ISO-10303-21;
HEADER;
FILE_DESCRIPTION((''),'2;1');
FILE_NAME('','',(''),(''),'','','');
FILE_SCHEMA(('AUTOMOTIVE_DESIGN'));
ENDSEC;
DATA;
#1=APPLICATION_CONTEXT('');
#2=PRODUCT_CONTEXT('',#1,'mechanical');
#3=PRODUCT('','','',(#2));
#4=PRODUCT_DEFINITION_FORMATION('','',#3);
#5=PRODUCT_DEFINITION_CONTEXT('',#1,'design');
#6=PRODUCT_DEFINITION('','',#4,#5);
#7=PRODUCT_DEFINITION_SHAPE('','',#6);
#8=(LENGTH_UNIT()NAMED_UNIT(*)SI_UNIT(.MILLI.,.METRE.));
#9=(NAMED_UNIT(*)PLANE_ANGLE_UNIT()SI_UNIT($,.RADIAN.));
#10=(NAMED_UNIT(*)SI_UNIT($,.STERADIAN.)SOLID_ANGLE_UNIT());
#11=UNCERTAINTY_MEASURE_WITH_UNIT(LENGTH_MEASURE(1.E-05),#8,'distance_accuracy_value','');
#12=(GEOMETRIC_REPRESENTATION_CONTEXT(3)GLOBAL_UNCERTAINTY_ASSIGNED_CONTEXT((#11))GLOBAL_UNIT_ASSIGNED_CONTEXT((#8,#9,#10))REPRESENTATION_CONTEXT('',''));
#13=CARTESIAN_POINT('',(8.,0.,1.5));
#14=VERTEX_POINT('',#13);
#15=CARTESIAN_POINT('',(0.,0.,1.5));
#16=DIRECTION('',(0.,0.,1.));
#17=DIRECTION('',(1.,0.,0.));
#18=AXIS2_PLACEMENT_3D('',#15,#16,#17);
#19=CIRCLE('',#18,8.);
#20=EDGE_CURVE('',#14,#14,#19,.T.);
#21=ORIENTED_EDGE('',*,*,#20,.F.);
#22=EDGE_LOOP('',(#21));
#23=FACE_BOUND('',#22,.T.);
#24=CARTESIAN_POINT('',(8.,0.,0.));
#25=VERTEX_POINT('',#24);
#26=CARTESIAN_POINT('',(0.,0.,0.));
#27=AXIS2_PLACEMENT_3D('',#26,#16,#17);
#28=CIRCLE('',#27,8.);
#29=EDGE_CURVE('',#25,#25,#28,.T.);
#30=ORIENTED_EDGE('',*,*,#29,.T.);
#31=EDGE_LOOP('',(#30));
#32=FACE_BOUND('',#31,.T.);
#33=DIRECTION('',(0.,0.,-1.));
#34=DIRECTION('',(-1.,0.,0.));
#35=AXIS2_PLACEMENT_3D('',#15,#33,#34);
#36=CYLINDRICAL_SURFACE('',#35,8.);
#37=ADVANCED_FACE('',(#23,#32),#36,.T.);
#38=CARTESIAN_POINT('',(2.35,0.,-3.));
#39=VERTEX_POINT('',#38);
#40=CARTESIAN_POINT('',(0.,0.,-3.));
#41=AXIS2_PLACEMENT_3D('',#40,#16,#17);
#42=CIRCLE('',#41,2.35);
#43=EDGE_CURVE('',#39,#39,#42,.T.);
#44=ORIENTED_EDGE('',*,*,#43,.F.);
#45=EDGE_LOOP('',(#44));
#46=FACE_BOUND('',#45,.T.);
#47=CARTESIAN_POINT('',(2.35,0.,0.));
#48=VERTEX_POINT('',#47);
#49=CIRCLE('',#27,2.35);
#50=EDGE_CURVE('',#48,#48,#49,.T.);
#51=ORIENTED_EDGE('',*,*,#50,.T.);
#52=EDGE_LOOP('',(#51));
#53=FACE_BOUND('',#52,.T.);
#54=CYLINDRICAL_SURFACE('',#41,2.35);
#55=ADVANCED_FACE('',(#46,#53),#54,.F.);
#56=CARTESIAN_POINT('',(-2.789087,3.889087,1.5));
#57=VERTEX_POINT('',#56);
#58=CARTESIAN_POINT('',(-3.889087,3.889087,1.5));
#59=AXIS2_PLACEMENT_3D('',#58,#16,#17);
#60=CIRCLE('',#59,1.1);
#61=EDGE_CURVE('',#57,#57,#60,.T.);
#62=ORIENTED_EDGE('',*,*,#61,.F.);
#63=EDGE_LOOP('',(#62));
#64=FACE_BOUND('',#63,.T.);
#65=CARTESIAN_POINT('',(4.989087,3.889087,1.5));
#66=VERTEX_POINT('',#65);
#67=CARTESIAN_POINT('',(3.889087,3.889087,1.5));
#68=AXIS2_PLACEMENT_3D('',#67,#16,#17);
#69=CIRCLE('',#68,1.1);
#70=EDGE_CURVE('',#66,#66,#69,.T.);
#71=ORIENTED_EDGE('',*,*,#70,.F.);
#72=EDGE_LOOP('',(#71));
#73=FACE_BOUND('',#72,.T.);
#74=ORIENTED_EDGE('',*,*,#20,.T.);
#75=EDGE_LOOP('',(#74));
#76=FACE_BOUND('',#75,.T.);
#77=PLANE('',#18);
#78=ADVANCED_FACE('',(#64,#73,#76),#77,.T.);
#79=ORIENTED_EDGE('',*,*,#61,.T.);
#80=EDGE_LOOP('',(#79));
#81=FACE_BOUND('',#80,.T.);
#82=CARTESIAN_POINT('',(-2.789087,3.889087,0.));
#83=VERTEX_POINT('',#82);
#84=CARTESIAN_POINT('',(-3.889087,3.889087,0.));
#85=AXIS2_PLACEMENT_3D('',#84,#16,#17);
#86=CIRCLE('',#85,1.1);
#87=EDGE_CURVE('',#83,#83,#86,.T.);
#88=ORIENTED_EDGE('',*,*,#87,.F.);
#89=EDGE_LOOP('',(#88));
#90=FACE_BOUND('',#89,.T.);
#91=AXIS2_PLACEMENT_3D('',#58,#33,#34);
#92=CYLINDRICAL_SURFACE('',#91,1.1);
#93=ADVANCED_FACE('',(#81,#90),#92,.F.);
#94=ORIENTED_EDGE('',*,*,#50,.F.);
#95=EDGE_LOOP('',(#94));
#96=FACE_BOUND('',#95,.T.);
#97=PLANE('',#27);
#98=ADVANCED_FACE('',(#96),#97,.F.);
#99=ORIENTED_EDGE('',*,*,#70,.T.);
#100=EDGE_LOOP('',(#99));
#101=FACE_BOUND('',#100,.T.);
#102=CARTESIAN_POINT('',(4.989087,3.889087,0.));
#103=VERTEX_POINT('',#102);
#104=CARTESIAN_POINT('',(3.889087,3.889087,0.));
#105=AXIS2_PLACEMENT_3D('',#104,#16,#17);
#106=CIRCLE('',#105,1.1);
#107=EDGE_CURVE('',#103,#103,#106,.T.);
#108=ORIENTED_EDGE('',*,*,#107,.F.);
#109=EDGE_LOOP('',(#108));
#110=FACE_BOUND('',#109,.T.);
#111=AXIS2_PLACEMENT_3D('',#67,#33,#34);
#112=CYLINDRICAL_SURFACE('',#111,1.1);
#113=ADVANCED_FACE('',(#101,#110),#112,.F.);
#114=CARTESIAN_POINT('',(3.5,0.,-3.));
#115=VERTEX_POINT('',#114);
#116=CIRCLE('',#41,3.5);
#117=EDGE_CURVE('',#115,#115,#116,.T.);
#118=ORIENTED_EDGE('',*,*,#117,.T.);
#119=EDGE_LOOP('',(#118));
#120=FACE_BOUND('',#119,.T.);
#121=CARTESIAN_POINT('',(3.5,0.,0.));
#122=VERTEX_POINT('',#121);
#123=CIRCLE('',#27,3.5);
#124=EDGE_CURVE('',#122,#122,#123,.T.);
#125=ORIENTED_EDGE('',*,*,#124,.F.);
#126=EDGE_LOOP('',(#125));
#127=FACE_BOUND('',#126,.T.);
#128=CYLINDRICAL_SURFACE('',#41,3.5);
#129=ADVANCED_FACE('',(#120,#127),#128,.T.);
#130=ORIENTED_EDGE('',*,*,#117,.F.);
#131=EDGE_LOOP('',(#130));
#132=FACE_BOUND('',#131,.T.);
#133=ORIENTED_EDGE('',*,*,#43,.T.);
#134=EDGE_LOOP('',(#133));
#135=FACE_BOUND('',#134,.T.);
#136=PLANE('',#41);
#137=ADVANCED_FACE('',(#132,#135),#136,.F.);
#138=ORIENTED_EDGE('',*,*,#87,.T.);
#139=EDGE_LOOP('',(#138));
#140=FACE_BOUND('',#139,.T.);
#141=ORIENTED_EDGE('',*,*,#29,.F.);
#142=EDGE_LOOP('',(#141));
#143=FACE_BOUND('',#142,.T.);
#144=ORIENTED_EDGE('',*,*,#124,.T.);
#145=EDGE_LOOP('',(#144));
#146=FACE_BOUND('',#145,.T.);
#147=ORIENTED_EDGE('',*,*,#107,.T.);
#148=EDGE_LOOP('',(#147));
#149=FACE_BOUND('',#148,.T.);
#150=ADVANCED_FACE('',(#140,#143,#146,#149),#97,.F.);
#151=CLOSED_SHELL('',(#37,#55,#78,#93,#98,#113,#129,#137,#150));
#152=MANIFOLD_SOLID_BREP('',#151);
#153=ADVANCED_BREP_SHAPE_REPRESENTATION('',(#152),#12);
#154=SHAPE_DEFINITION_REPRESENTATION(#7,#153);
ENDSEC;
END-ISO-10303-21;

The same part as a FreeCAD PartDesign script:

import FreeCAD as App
import Part
import Sketcher

doc = App.newDocument("Part")
params = doc.addObject("Spreadsheet::Sheet", "Params")
for row, (alias, value) in enumerate([
    ("sketch1_diameter", "16 mm"),
    ("sketch1_diameter2", "2.2 mm"),
    ("pad1_length", "1.5 mm"),
    ("sketch2_diameter", "7 mm"),
    ("sketch2_diameter2", "4.7 mm"),
    ("pad2_length", "3 mm"),
], start=1):
    params.set(f"A{row}", alias)
    params.set(f"B{row}", "=" + value)
    params.setAlias(f"B{row}", alias)

body = doc.addObject("PartDesign::Body", "Body")

# Sketch on XY plane
sketch1 = body.newObject("Sketcher::SketchObject", "Sketch")
sketch1.AttachmentSupport = (doc.getObject("XY_Plane"), [""])
sketch1.MapMode = "FlatFace"
sketch1.addGeometry([
    Part.Circle(App.Vector(0, 0, 0), App.Vector(0, 0, 1), 8),
    Part.Circle(App.Vector(-3.9, 3.9, 0), App.Vector(0, 0, 1), 1.1),
    Part.Circle(App.Vector(3.9, 3.9, 0), App.Vector(0, 0, 1), 1.1),
], False)
sketch1.addConstraint([
    Sketcher.Constraint("Coincident", 0, 3, -1, 1),
    Sketcher.Constraint("Equal", 1, 2),
    Sketcher.Constraint("Symmetric", 1, 3, 2, 3, -2),
    Sketcher.Constraint("Diameter", 0, 16.0),
    Sketcher.Constraint("Diameter", 1, 2.2),
    Sketcher.Constraint("DistanceX", 1, 3, -1, 1, 3.889087),
    Sketcher.Constraint("DistanceY", -1, 1, 1, 3, 3.889087),
])
sketch1.setExpression("Constraints[3]", "Params.sketch1_diameter")
sketch1.setExpression("Constraints[4]", "Params.sketch1_diameter2")
pad1 = body.newObject("PartDesign::Pad", "Pad")
pad1.Profile = sketch1
pad1.setExpression("Length", "Params.pad1_length")

# Sketch on XY plane
sketch2 = body.newObject("Sketcher::SketchObject", "Sketch001")
sketch2.AttachmentSupport = (doc.getObject("XY_Plane"), [""])
sketch2.MapMode = "FlatFace"
sketch2.addGeometry([
    Part.Circle(App.Vector(0, 0, 0), App.Vector(0, 0, 1), 3.5),
    Part.Circle(App.Vector(0, 0, 0), App.Vector(0, 0, 1), 2.4),
], False)
sketch2.addConstraint([
    Sketcher.Constraint("Coincident", 0, 3, -1, 1),
    Sketcher.Constraint("Coincident", 1, 3, -1, 1),
    Sketcher.Constraint("Diameter", 0, 7.0),
    Sketcher.Constraint("Diameter", 1, 4.7),
])
sketch2.setExpression("Constraints[2]", "Params.sketch2_diameter")
sketch2.setExpression("Constraints[3]", "Params.sketch2_diameter2")
pad2 = body.newObject("PartDesign::Pad", "Pad001")
pad2.Profile = sketch2
pad2.setExpression("Length", "Params.pad2_length")
pad2.Reversed = True

doc.recompute()
